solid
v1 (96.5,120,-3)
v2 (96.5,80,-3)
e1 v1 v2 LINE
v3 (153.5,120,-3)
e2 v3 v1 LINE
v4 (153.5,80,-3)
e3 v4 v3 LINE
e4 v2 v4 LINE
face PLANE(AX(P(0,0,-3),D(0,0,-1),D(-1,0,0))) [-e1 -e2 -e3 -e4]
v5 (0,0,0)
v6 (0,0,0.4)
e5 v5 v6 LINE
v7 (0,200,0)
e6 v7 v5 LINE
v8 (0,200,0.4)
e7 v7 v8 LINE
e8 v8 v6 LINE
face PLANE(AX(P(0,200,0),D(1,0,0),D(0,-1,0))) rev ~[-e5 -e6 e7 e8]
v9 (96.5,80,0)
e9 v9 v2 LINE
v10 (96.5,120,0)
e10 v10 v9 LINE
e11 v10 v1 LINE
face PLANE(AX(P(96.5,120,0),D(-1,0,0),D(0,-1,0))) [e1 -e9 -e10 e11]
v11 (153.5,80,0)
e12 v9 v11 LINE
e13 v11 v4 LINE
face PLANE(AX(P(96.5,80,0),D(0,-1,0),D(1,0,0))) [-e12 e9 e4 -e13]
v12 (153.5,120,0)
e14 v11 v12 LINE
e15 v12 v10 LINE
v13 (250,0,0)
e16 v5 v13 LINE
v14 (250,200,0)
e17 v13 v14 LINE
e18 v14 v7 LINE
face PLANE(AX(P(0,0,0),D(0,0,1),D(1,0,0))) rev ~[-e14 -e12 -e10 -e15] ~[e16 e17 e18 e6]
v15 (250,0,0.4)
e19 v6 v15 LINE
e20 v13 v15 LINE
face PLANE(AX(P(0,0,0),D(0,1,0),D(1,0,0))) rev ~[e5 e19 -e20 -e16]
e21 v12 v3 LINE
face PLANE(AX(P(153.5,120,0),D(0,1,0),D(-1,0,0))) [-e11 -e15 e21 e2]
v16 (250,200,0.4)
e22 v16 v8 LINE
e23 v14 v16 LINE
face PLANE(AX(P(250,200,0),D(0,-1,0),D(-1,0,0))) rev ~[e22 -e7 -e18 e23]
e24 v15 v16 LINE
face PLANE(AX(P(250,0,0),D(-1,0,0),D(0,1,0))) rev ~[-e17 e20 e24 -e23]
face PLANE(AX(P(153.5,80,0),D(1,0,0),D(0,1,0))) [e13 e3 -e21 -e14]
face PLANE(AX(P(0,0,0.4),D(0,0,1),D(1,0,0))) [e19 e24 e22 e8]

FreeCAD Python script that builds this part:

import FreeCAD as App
import Part
import Sketcher
from FreeCAD import Vector
Q = App.Units.Quantity


def add_polygon(sketch, points):
    """Adds a closed chain of lines whose ends are joined by coincident constraints."""
    first, n = sketch.GeometryCount, len(points)
    for a, b in zip(points, points[1:] + points[:1]):
        sketch.addGeometry(Part.LineSegment(App.Vector(*a, 0), App.Vector(*b, 0)), False)
    for i in range(n):
        sketch.addConstraint(Sketcher.Constraint("Coincident", first + i, 2, first + (i + 1) % n, 1))

doc = App.newDocument("Part")
body = doc.addObject("PartDesign::Body", "Body")

# Sketch on XY plane
sketch1 = body.newObject("Sketcher::SketchObject", "Sketch")
sketch1.AttachmentSupport = (doc.getObject("XY_Plane"), [""])
sketch1.MapMode = "FlatFace"
add_polygon(sketch1, [(0, 200), (0, 0), (250, 0), (250, 200)])  # lines 0-3
sketch1.addConstraint(Sketcher.Constraint("Vertical", 0))
sketch1.addConstraint(Sketcher.Constraint("Horizontal", 1))
sketch1.addConstraint(Sketcher.Constraint("Vertical", 2))
sketch1.addConstraint(Sketcher.Constraint("Horizontal", 3))
sketch1.addConstraint(Sketcher.Constraint("Coincident", 0, 2, -1, 1))
sketch1.addConstraint(Sketcher.Constraint("DistanceX", 1, 1, 1, 2, Q("250 mm")))
sketch1.addConstraint(Sketcher.Constraint("DistanceY", 0, 2, 0, 1, Q("200 mm")))
pad1 = body.newObject("PartDesign::Pad", "Pad")
pad1.Profile = sketch1
pad1.Length = 0.4

# Sketch on XY plane
sketch2 = body.newObject("Sketcher::SketchObject", "Sketch001")
sketch2.AttachmentSupport = (doc.getObject("XY_Plane"), [""])
sketch2.MapMode = "FlatFace"
add_polygon(sketch2, [(154, 80), (96, 80), (96, 120), (154, 120)])  # lines 0-3
sketch2.addConstraint(Sketcher.Constraint("Horizontal", 0))
sketch2.addConstraint(Sketcher.Constraint("Vertical", 1))
sketch2.addConstraint(Sketcher.Constraint("Horizontal", 2))
sketch2.addConstraint(Sketcher.Constraint("Vertical", 3))
sketch2.addConstraint(Sketcher.Constraint("DistanceX", 0, 2, 0, 1, Q("57 mm")))
sketch2.addConstraint(Sketcher.Constraint("DistanceY", 1, 1, 1, 2, Q("40 mm")))
sketch2.addConstraint(Sketcher.Constraint("DistanceY", -1, 1, 0, 2, Q("80 mm")))
sketch2.addConstraint(Sketcher.Constraint("DistanceX", -1, 1, 0, 2, Q("96.5 mm")))
pad2 = body.newObject("PartDesign::Pad", "Pad001")
pad2.Profile = sketch2
pad2.Length = 3
pad2.Reversed = True

doc.recompute()
